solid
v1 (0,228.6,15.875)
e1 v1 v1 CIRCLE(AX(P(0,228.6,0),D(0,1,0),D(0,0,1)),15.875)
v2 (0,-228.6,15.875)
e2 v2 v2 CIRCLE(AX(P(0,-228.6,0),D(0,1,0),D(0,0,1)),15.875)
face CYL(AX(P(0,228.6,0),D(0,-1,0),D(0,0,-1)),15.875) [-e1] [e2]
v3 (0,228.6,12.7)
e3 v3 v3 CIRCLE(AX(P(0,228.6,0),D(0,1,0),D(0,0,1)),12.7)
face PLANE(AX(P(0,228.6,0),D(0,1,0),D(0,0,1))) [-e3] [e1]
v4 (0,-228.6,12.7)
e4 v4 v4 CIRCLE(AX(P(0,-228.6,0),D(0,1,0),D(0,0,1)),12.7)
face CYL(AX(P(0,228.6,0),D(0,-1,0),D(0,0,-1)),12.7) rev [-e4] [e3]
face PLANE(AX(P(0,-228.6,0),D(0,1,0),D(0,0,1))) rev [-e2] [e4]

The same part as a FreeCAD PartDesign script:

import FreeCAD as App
import Part
import Sketcher

V = App.Vector
Q = App.Units.Quantity

doc = App.newDocument("Part")
body = doc.addObject("PartDesign::Body", "Body")

# Sketch on XZ plane
sketch1 = body.newObject("Sketcher::SketchObject", "Sketch")
sketch1.AttachmentSupport = (doc.getObject("XZ_Plane"), [""])
sketch1.MapMode = "FlatFace"
sketch1.addGeometry(Part.Circle(V(0, 0, 0), V(0, 0, 1), 16), False)
sketch1.addGeometry(Part.Circle(V(0, 0, 0), V(0, 0, 1), 13), False)
sketch1.addConstraint(Sketcher.Constraint("Coincident", 0, 3, -1, 1))
sketch1.addConstraint(Sketcher.Constraint("Coincident", 1, 3, -1, 1))
sketch1.addConstraint(Sketcher.Constraint("Diameter", 1, Q("1 in")))
sketch1.addConstraint(Sketcher.Constraint("Diameter", 0, Q("1.25 in")))
pad1 = body.newObject("PartDesign::Pad", "Pad")
pad1.Profile = sketch1
pad1.Length = Q("18 in")
pad1.Midplane = True

doc.recompute()
